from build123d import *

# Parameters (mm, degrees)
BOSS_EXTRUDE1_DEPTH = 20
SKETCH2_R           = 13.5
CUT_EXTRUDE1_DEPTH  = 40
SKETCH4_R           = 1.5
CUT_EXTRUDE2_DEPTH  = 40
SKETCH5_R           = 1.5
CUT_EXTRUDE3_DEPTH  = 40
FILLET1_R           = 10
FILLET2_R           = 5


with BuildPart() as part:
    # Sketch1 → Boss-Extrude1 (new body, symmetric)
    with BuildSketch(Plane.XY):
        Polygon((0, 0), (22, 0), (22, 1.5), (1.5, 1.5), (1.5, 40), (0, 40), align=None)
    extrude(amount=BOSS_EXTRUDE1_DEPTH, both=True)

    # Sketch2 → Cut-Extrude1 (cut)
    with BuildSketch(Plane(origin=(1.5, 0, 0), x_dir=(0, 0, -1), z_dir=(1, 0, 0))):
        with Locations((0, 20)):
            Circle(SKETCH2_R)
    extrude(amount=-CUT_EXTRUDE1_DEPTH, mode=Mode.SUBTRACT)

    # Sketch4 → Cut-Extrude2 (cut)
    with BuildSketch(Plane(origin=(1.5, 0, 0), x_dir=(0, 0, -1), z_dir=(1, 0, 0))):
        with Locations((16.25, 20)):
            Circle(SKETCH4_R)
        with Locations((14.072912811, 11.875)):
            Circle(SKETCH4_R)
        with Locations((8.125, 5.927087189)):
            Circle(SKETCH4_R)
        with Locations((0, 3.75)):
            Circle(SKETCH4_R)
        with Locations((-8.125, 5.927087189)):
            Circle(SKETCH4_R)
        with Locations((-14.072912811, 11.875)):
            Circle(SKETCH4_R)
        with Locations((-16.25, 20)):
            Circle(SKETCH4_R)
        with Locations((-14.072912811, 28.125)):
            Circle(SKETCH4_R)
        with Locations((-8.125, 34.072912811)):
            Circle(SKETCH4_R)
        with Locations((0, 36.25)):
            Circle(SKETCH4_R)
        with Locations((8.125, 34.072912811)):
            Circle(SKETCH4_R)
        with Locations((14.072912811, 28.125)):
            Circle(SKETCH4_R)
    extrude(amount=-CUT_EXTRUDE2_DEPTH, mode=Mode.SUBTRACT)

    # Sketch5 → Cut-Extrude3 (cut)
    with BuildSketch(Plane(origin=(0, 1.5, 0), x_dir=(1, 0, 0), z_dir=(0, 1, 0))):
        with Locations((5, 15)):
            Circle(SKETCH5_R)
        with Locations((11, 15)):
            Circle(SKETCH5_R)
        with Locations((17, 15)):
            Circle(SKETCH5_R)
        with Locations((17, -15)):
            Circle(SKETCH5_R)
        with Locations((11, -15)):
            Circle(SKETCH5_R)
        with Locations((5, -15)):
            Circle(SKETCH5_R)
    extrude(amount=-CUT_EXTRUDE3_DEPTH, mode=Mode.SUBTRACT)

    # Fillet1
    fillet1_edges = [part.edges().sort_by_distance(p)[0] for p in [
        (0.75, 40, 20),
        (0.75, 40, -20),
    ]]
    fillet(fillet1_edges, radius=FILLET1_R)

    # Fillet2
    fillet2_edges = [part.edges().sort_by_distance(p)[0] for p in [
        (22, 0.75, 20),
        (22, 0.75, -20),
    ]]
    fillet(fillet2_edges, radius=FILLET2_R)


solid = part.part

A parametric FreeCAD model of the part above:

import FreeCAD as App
import Part
import Sketcher
from FreeCAD import Vector


def edges_at(feature, points):
    """Names of the edges that pass closest to the given points."""
    edges = feature.Shape.Edges
    near = lambda p: min(range(len(edges)), key=lambda i: edges[i].distToShape(Part.Vertex(*p))[0])
    return sorted({f"Edge{near(p) + 1}" for p in points})


def add_polygon(sketch, points):
    """Adds a closed chain of lines whose ends are joined by coincident constraints."""
    first, n = sketch.GeometryCount, len(points)
    for a, b in zip(points, points[1:] + points[:1]):
        sketch.addGeometry(Part.LineSegment(App.Vector(*a, 0), App.Vector(*b, 0)), False)
    for i in range(n):
        sketch.addConstraint(Sketcher.Constraint("Coincident", first + i, 2, first + (i + 1) % n, 1))

doc = App.newDocument("Part")
body = doc.addObject("PartDesign::Body", "Body")

# Sketch on XY plane
sketch1 = body.newObject("Sketcher::SketchObject", "Sketch")
sketch1.AttachmentSupport = (doc.getObject("XY_Plane"), [""])
sketch1.MapMode = "FlatFace"
add_polygon(sketch1, [(0, 0), (22, 0), (22, 1.5), (1.5, 1.5), (1.5, 40), (0, 40)])  # lines 0-5
sketch1.addConstraint([
    Sketcher.Constraint("Horizontal", 0),
    Sketcher.Constraint("Vertical", 1),
    Sketcher.Constraint("Horizontal", 2),
    Sketcher.Constraint("Vertical", 3),
    Sketcher.Constraint("Horizontal", 4),
    Sketcher.Constraint("Vertical", 5),
    Sketcher.Constraint("Coincident", 5, 2, -1, 1),
    Sketcher.Constraint("Equal", 4, 1),
    Sketcher.Constraint("DistanceX", 0, 1, 0, 2, 22.0),
    Sketcher.Constraint("DistanceY", 5, 2, 5, 1, 40.0),
    Sketcher.Constraint("DistanceX", 2, 2, 2, 1, 20.5),
])
pad1 = body.newObject("PartDesign::Pad", "Pad")
pad1.Profile = sketch1
pad1.Length = 40
pad1.Midplane = True

# Sketch on YZ plane
sketch2 = body.newObject("Sketcher::SketchObject", "Sketch001")
sketch2.AttachmentSupport = (doc.getObject("YZ_Plane"), [""])
sketch2.MapMode = "FlatFace"
sketch2.AttachmentOffset = App.Placement(Vector(0, 0, 1.5), App.Rotation())
sketch2.addGeometry(Part.Circle(Vector(20, 0, 0), Vector(0, 0, 1), 14), False)
sketch2.addConstraint([
    Sketcher.Constraint("PointOnObject", 0, 3, -1),
    Sketcher.Constraint("Diameter", 0, 27.0),
    Sketcher.Constraint("DistanceX", -1, 1, 0, 3, 20.0),
])
pocket1 = body.newObject("PartDesign::Pocket", "Pocket")
pocket1.Profile = sketch2
pocket1.Length = 40

# Sketch on YZ plane
sketch3 = body.newObject("Sketcher::SketchObject", "Sketch002")
sketch3.AttachmentSupport = (doc.getObject("YZ_Plane"), [""])
sketch3.MapMode = "FlatFace"
sketch3.AttachmentOffset = App.Placement(Vector(0, 0, 1.5), App.Rotation())
sketch3.addGeometry([
    Part.Circle(Vector(20, -16.2, 0), Vector(0, 0, 1), 1.5),  # 0
    Part.Circle(Vector(11.9, -14.1, 0), Vector(0, 0, 1), 1.5),  # 1
    Part.Circle(Vector(5.9, -8.1, 0), Vector(0, 0, 1), 1.5),  # 2
    Part.Circle(Vector(3.8, 0, 0), Vector(0, 0, 1), 1.5),  # 3
    Part.Circle(Vector(5.9, 8.1, 0), Vector(0, 0, 1), 1.5),  # 4
    Part.Circle(Vector(11.9, 14.1, 0), Vector(0, 0, 1), 1.5),  # 5
    Part.Circle(Vector(20, 16.2, 0), Vector(0, 0, 1), 1.5),  # 6
    Part.Circle(Vector(28.1, 14.1, 0), Vector(0, 0, 1), 1.5),  # 7
    Part.Circle(Vector(34.1, 8.1, 0), Vector(0, 0, 1), 1.5),  # 8
    Part.Circle(Vector(36.2, 0, 0), Vector(0, 0, 1), 1.5),  # 9
    Part.Circle(Vector(34.1, -8.1, 0), Vector(0, 0, 1), 1.5),  # 10
    Part.Circle(Vector(28.1, -14.1, 0), Vector(0, 0, 1), 1.5),  # 11
], False)
sketch3.addConstraint([
    Sketcher.Constraint("Equal", 0, 1),
    Sketcher.Constraint("Equal", 1, 2),
    Sketcher.Constraint("Equal", 2, 3),
    Sketcher.Constraint("Equal", 3, 4),
    Sketcher.Constraint("Equal", 4, 5),
    Sketcher.Constraint("Equal", 5, 6),
    Sketcher.Constraint("Equal", 6, 7),
    Sketcher.Constraint("Equal", 7, 8),
    Sketcher.Constraint("Equal", 8, 9),
    Sketcher.Constraint("Equal", 9, 10),
    Sketcher.Constraint("Equal", 10, 11),
    Sketcher.Constraint("Symmetric", 2, 3, 4, 3, -1),
    Sketcher.Constraint("Symmetric", 1, 3, 5, 3, -1),
    Sketcher.Constraint("Symmetric", 0, 3, 6, 3, -1),
    Sketcher.Constraint("Symmetric", 8, 3, 10, 3, -1),
    Sketcher.Constraint("Symmetric", 7, 3, 11, 3, -1),
    Sketcher.Constraint("PointOnObject", 3, 3, -1),
    Sketcher.Constraint("PointOnObject", 9, 3, -1),
    Sketcher.Constraint("Horizontal", 5, 3, 7, 3),
    Sketcher.Constraint("Horizontal", 4, 3, 8, 3),
    Sketcher.Constraint("Diameter", 0, 3.0),
    Sketcher.Constraint("DistanceX", -1, 1, 0, 3, 20.0),
    Sketcher.Constraint("DistanceY", 0, 3, -1, 1, 16.25),
    Sketcher.Constraint("DistanceX", -1, 1, 3, 3, 3.75),
    Sketcher.Constraint("DistanceX", -1, 1, 9, 3, 36.25),
    Sketcher.Constraint("DistanceY", 2, 3, 4, 3, 16.25),
    Sketcher.Constraint("DistanceX", 5, 3, 7, 3, 16.25),
    Sketcher.Constraint("DistanceX", -1, 1, 1, 3, 11.875),
    Sketcher.Constraint("DistanceY", 1, 3, -1, 1, 14.072913),
    Sketcher.Constraint("DistanceX", -1, 1, 2, 3, 5.927087),
    Sketcher.Constraint("DistanceX", -1, 1, 8, 3, 34.072913),
])
pocket2 = body.newObject("PartDesign::Pocket", "Pocket001")
pocket2.Profile = sketch3
pocket2.Length = 40

# Sketch on XZ plane
sketch4 = body.newObject("Sketcher::SketchObject", "Sketch003")
sketch4.AttachmentSupport = (doc.getObject("XZ_Plane"), [""])
sketch4.MapMode = "FlatFace"
sketch4.AttachmentOffset = App.Placement(Vector(0, 0, -1.5), App.Rotation())
sketch4.addGeometry([
    Part.Circle(Vector(5, -15, 0), Vector(0, 0, 1), 1.5),  # 0
    Part.Circle(Vector(11, -15, 0), Vector(0, 0, 1), 1.5),  # 1
    Part.Circle(Vector(17, -15, 0), Vector(0, 0, 1), 1.5),  # 2
    Part.Circle(Vector(17, 15, 0), Vector(0, 0, 1), 1.5),  # 3
    Part.Circle(Vector(11, 15, 0), Vector(0, 0, 1), 1.5),  # 4
    Part.Circle(Vector(5, 15, 0), Vector(0, 0, 1), 1.5),  # 5
], False)
sketch4.addConstraint([
    Sketcher.Constraint("Equal", 0, 1),
    Sketcher.Constraint("Equal", 1, 2),
    Sketcher.Constraint("Equal", 2, 3),
    Sketcher.Constraint("Equal", 3, 4),
    Sketcher.Constraint("Equal", 4, 5),
    Sketcher.Constraint("Symmetric", 2, 3, 3, 3, -1),
    Sketcher.Constraint("Symmetric", 1, 3, 4, 3, -1),
    Sketcher.Constraint("Symmetric", 0, 3, 5, 3, -1),
    Sketcher.Constraint("Horizontal", 0, 3, 1, 3),
    Sketcher.Constraint("Horizontal", 1, 3, 2, 3),
    Sketcher.Constraint("Diameter", 0, 3.0),
    Sketcher.Constraint("DistanceX", -1, 1, 0, 3, 5.0),
    Sketcher.Constraint("DistanceY", 0, 3, -1, 1, 15.0),
    Sketcher.Constraint("DistanceX", -1, 1, 1, 3, 11.0),
    Sketcher.Constraint("DistanceX", -1, 1, 2, 3, 17.0),
])
pocket3 = body.newObject("PartDesign::Pocket", "Pocket002")
pocket3.Profile = sketch4
pocket3.Length = 40
pocket3.Reversed = True
doc.recompute()

fillet = body.newObject("PartDesign::Fillet", "Fillet")
fillet.Base = (pocket3, edges_at(pocket3, [(0.75, 40, 20), (0.75, 40, -20)]))
fillet.Radius = 10
doc.recompute()

fillet2 = body.newObject("PartDesign::Fillet", "Fillet001")
fillet2.Base = (fillet, edges_at(fillet, [(22, 0.75, 20), (22, 0.75, -20)]))
fillet2.Radius = 5

doc.recompute()
